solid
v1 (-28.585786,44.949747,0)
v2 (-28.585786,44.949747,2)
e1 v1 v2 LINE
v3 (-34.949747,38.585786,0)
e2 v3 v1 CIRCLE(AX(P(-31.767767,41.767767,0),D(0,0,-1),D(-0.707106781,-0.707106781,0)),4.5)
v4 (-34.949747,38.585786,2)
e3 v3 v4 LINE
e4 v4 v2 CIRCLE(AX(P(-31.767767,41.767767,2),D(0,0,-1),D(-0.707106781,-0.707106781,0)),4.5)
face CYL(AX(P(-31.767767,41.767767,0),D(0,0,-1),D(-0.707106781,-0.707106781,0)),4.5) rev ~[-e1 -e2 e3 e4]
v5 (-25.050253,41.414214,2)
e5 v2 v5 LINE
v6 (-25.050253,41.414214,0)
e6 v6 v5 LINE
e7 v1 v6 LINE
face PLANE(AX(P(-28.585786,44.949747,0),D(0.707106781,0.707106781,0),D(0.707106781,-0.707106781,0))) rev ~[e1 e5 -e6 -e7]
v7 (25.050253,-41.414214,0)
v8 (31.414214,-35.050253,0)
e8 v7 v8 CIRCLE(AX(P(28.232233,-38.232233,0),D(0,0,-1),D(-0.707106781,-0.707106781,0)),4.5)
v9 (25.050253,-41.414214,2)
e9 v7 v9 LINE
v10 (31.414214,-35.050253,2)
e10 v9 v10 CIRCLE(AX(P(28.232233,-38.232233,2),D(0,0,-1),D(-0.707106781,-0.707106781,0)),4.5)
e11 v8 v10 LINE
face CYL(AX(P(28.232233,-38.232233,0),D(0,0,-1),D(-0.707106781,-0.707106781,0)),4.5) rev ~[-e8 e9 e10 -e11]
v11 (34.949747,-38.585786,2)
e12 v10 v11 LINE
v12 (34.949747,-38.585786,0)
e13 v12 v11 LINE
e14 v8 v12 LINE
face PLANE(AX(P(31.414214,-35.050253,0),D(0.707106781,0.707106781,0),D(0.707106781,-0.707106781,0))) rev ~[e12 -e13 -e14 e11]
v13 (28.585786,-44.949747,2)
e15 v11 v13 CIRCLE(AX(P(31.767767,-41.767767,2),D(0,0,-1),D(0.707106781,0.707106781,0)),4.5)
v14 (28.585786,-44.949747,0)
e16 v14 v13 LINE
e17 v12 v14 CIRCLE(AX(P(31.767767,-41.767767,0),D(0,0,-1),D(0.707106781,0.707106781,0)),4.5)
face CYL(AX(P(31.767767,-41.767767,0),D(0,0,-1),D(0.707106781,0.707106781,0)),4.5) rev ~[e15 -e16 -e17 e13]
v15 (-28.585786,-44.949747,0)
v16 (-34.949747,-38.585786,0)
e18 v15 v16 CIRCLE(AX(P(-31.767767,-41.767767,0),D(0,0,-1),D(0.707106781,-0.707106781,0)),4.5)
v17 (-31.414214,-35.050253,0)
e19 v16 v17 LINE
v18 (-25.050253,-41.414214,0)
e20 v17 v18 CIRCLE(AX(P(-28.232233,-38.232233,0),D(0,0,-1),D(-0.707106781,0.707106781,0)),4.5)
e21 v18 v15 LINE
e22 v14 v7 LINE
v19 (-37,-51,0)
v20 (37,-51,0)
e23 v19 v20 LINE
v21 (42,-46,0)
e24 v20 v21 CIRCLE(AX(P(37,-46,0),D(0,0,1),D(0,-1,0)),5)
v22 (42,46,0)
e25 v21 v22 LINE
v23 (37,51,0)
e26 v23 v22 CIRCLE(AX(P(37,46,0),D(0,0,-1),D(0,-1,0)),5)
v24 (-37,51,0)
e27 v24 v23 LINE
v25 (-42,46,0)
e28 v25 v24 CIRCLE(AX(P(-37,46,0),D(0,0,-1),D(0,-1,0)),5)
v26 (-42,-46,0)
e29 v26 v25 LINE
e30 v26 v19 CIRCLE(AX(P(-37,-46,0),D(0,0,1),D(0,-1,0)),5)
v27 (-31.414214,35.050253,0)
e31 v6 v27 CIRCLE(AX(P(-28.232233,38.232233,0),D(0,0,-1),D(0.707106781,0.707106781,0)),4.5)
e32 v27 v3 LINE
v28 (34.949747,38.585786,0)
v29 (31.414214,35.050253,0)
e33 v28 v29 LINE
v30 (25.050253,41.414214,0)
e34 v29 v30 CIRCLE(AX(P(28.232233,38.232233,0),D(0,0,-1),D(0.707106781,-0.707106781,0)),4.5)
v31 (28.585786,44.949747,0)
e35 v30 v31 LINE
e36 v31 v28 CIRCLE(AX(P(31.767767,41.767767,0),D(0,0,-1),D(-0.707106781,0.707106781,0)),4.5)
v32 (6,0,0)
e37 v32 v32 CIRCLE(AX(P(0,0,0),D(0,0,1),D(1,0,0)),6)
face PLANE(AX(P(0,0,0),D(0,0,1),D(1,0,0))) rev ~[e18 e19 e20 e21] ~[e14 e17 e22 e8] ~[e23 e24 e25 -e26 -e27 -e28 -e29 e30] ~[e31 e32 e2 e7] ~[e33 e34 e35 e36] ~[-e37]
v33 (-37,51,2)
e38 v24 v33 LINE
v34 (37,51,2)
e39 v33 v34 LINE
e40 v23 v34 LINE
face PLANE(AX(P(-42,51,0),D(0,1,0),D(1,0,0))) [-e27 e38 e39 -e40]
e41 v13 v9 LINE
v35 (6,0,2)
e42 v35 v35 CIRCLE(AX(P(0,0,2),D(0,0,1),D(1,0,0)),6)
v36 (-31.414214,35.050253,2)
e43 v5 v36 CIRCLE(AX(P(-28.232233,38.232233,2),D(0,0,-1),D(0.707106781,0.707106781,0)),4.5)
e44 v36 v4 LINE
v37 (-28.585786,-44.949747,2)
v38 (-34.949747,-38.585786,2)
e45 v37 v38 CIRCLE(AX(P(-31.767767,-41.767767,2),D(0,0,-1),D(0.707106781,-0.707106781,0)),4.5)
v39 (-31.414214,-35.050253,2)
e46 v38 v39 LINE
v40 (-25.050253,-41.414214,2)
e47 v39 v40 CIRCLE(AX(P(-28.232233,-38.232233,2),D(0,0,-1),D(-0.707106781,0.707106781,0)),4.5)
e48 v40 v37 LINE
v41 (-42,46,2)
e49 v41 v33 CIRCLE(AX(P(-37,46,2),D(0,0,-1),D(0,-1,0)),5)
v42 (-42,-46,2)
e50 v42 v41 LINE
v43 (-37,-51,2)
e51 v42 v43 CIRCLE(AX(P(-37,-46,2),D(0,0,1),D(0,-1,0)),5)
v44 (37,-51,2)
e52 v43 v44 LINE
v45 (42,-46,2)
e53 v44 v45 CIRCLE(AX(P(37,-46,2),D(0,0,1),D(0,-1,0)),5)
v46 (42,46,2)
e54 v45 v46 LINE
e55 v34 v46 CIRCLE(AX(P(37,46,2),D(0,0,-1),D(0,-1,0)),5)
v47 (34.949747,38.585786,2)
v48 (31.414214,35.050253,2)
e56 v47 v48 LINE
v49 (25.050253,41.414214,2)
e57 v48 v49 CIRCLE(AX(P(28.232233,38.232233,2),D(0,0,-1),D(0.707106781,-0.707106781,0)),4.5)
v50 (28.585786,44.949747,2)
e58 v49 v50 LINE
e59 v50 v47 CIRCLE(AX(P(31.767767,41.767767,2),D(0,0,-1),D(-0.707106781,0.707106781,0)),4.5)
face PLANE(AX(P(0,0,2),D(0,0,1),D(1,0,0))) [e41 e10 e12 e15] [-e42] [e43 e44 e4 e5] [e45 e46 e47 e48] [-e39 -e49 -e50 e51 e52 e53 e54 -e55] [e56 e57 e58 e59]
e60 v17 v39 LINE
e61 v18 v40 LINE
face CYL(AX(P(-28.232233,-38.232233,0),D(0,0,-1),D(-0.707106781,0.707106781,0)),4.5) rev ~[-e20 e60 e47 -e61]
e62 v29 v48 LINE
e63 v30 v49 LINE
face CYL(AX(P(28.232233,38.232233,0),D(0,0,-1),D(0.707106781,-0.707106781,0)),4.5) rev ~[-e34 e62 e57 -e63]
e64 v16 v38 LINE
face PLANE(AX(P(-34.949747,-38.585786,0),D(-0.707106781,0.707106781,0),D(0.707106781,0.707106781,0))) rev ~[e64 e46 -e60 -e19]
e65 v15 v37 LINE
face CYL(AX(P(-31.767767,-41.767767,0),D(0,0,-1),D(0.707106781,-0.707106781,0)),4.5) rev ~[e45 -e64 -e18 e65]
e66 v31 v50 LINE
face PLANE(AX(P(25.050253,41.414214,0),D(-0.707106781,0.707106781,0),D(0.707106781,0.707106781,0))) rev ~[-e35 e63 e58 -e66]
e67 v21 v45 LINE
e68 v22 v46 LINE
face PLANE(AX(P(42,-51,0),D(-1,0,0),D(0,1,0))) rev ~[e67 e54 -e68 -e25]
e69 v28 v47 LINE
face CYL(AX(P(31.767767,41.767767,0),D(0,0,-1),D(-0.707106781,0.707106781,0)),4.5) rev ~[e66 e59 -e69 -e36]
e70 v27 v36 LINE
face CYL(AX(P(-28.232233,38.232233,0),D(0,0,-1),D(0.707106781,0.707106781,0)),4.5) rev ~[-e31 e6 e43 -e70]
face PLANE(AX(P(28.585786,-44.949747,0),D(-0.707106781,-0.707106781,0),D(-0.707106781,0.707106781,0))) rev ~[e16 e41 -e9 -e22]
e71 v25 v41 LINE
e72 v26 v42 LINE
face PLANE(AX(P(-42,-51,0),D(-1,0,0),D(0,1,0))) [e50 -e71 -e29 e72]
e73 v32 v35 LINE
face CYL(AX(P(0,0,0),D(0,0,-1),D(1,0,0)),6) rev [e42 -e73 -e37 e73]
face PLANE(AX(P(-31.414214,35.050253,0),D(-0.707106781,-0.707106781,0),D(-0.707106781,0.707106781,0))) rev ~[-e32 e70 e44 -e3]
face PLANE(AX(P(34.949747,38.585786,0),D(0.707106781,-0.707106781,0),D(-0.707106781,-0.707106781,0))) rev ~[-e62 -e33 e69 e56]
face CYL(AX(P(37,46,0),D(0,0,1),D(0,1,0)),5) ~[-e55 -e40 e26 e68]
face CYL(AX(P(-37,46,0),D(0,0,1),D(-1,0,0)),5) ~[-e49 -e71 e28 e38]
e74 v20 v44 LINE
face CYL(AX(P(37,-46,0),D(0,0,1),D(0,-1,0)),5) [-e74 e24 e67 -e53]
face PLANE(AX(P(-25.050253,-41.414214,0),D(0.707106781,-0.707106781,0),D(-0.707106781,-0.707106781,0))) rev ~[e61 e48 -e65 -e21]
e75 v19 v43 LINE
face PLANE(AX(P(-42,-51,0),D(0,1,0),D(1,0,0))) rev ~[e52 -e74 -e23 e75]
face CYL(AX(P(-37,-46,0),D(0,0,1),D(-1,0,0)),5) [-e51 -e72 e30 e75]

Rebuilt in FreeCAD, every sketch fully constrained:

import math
import FreeCAD as App
import Part
import Sketcher
Q = App.Units.Quantity


def edges_at(feature, points):
    """Names of the edges that pass closest to the given points."""
    edges = feature.Shape.Edges
    near = lambda p: min(range(len(edges)), key=lambda i: edges[i].distToShape(Part.Vertex(*p))[0])
    return sorted({f"Edge{near(p) + 1}" for p in points})

doc = App.newDocument("Part")
body = doc.addObject("PartDesign::Body", "Body")

# Sketch on XY plane
sketch1 = body.newObject("Sketcher::SketchObject", "Sketch")
sketch1.AttachmentSupport = (doc.getObject("XY_Plane"), [""])
sketch1.MapMode = "FlatFace"
sketch1.addGeometry(Part.LineSegment(App.Vector(-42, 51, 0), App.Vector(-42, -51, 0)), False)
sketch1.addGeometry(Part.LineSegment(App.Vector(-42, -51, 0), App.Vector(42, -51, 0)), False)
sketch1.addGeometry(Part.LineSegment(App.Vector(42, -51, 0), App.Vector(42, 51, 0)), False)
sketch1.addGeometry(Part.LineSegment(App.Vector(42, 51, 0), App.Vector(-42, 51, 0)), False)
sketch1.addGeometry(Part.ArcOfCircle(Part.Circle(App.Vector(-28.2, -38.2, 0), App.Vector(0, 0, 1), 4.5), math.radians(-45), math.radians(135)), False)
sketch1.addGeometry(Part.LineSegment(App.Vector(-25.1, -41.4, 0), App.Vector(-28.6, -44.9, 0)), False)
sketch1.addGeometry(Part.ArcOfCircle(Part.Circle(App.Vector(-31.8, -41.8, 0), App.Vector(0, 0, 1), 4.5), math.radians(135), math.radians(315)), False)
sketch1.addGeometry(Part.LineSegment(App.Vector(-34.9, -38.6, 0), App.Vector(-31.4, -35.1, 0)), False)
sketch1.addGeometry(Part.LineSegment(App.Vector(28.6, -44.9, 0), App.Vector(25.1, -41.4, 0)), False)
sketch1.addGeometry(Part.ArcOfCircle(Part.Circle(App.Vector(28.2, -38.2, 0), App.Vector(0, 0, 1), 4.5), math.radians(45), math.radians(225)), False)
sketch1.addGeometry(Part.LineSegment(App.Vector(31.4, -35.1, 0), App.Vector(34.9, -38.6, 0)), False)
sketch1.addGeometry(Part.ArcOfCircle(Part.Circle(App.Vector(31.8, -41.8, 0), App.Vector(0, 0, 1), 4.5), math.radians(-135), math.radians(45)), False)
sketch1.addGeometry(Part.LineSegment(App.Vector(-31.4, 35.1, 0), App.Vector(-34.9, 38.6, 0)), False)
sketch1.addGeometry(Part.ArcOfCircle(Part.Circle(App.Vector(-31.8, 41.8, 0), App.Vector(0, 0, 1), 4.5), math.radians(45), math.radians(225)), False)
sketch1.addGeometry(Part.LineSegment(App.Vector(-28.6, 44.9, 0), App.Vector(-25.1, 41.4, 0)), False)
sketch1.addGeometry(Part.ArcOfCircle(Part.Circle(App.Vector(-28.2, 38.2, 0), App.Vector(0, 0, 1), 4.5), math.radians(-135), math.radians(45)), False)
sketch1.addGeometry(Part.Circle(App.Vector(0, 0, 0), App.Vector(0, 0, 1), 6), False)
sketch1.addGeometry(Part.ArcOfCircle(Part.Circle(App.Vector(28.2, 38.2, 0), App.Vector(0, 0, 1), 4.5), math.radians(135), math.radians(315)), False)
sketch1.addGeometry(Part.LineSegment(App.Vector(25.1, 41.4, 0), App.Vector(28.6, 44.9, 0)), False)
sketch1.addGeometry(Part.ArcOfCircle(Part.Circle(App.Vector(31.8, 41.8, 0), App.Vector(0, 0, 1), 4.5), math.radians(-45), math.radians(135)), False)
sketch1.addGeometry(Part.LineSegment(App.Vector(34.9, 38.6, 0), App.Vector(31.4, 35.1, 0)), False)
sketch1.addConstraint(Sketcher.Constraint("Coincident", 0, 2, 1, 1))
sketch1.addConstraint(Sketcher.Constraint("Coincident", 1, 2, 2, 1))
sketch1.addConstraint(Sketcher.Constraint("Coincident", 2, 2, 3, 1))
sketch1.addConstraint(Sketcher.Constraint("Coincident", 3, 2, 0, 1))
sketch1.addConstraint(Sketcher.Constraint("Tangent", 4, 1, 5, 1))
sketch1.addConstraint(Sketcher.Constraint("Tangent", 5, 2, 6, 2))
sketch1.addConstraint(Sketcher.Constraint("Tangent", 6, 1, 7, 1))
sketch1.addConstraint(Sketcher.Constraint("Tangent", 7, 2, 4, 2))
sketch1.addConstraint(Sketcher.Constraint("Tangent", 8, 2, 9, 2))
sketch1.addConstraint(Sketcher.Constraint("Tangent", 9, 1, 10, 1))
sketch1.addConstraint(Sketcher.Constraint("Tangent", 10, 2, 11, 2))
sketch1.addConstraint(Sketcher.Constraint("Tangent", 11, 1, 8, 1))
sketch1.addConstraint(Sketcher.Constraint("Tangent", 12, 2, 13, 2))
sketch1.addConstraint(Sketcher.Constraint("Tangent", 13, 1, 14, 1))
sketch1.addConstraint(Sketcher.Constraint("Tangent", 14, 2, 15, 2))
sketch1.addConstraint(Sketcher.Constraint("Tangent", 15, 1, 12, 1))
sketch1.addConstraint(Sketcher.Constraint("Tangent", 17, 1, 18, 1))
sketch1.addConstraint(Sketcher.Constraint("Tangent", 18, 2, 19, 2))
sketch1.addConstraint(Sketcher.Constraint("Tangent", 19, 1, 20, 1))
sketch1.addConstraint(Sketcher.Constraint("Tangent", 20, 2, 17, 2))
sketch1.addConstraint(Sketcher.Constraint("Vertical", 0))
sketch1.addConstraint(Sketcher.Constraint("Horizontal", 1))
sketch1.addConstraint(Sketcher.Constraint("Vertical", 2))
sketch1.addConstraint(Sketcher.Constraint("Horizontal", 3))
sketch1.addConstraint(Sketcher.Constraint("Coincident", 16, 3, -1, 1))
sketch1.addConstraint(Sketcher.Constraint("Equal", 4, 6))
sketch1.addConstraint(Sketcher.Constraint("Equal", 6, 9))
sketch1.addConstraint(Sketcher.Constraint("Equal", 9, 11))
sketch1.addConstraint(Sketcher.Constraint("Equal", 11, 13))
sketch1.addConstraint(Sketcher.Constraint("Equal", 13, 15))
sketch1.addConstraint(Sketcher.Constraint("Equal", 15, 17))
sketch1.addConstraint(Sketcher.Constraint("Equal", 17, 19))
sketch1.addConstraint(Sketcher.Constraint("Symmetric", 11, 3, 13, 3, -1, 1))
sketch1.addConstraint(Sketcher.Constraint("Symmetric", 9, 3, 15, 3, -1, 1))
sketch1.addConstraint(Sketcher.Constraint("Symmetric", 4, 3, 17, 3, -1, 1))
sketch1.addConstraint(Sketcher.Constraint("Symmetric", 6, 3, 19, 3, -1, 1))
sketch1.addConstraint(Sketcher.Constraint("Symmetric", 0, 2, 2, 2, -1, 1))
sketch1.addConstraint(Sketcher.Constraint("Symmetric", 4, 3, 9, 3, -2))
sketch1.addConstraint(Sketcher.Constraint("Symmetric", 6, 3, 11, 3, -2))
sketch1.addConstraint(Sketcher.Constraint("Perpendicular", 7, 8))
sketch1.addConstraint(Sketcher.Constraint("Diameter", 16, Q("12 mm")))
sketch1.addConstraint(Sketcher.Constraint("Radius", 4, Q("4.5 mm")))
sketch1.addConstraint(Sketcher.Constraint("DistanceX", 1, 1, 1, 2, Q("84 mm")))
sketch1.addConstraint(Sketcher.Constraint("DistanceY", 0, 2, 0, 1, Q("102 mm")))
sketch1.addConstraint(Sketcher.Constraint("Distance", 5, Q("4.999999 mm")))
sketch1.addConstraint(Sketcher.Constraint("DistanceX", 6, 3, 9, 3, Q("60 mm")))
sketch1.addConstraint(Sketcher.Constraint("DistanceY", 4, 3, 13, 3, Q("80 mm")))
pad1 = body.newObject("PartDesign::Pad", "Pad")
pad1.Profile = sketch1
pad1.Length = 2
doc.recompute()

fillet = body.newObject("PartDesign::Fillet", "Fillet")
fillet.Base = (pad1, edges_at(pad1, [
    (42, -51, 1),
    (42, 51, 1),
    (-42, -51, 1),
    (-42, 51, 1),
]))
fillet.Radius = 5

doc.recompute()
